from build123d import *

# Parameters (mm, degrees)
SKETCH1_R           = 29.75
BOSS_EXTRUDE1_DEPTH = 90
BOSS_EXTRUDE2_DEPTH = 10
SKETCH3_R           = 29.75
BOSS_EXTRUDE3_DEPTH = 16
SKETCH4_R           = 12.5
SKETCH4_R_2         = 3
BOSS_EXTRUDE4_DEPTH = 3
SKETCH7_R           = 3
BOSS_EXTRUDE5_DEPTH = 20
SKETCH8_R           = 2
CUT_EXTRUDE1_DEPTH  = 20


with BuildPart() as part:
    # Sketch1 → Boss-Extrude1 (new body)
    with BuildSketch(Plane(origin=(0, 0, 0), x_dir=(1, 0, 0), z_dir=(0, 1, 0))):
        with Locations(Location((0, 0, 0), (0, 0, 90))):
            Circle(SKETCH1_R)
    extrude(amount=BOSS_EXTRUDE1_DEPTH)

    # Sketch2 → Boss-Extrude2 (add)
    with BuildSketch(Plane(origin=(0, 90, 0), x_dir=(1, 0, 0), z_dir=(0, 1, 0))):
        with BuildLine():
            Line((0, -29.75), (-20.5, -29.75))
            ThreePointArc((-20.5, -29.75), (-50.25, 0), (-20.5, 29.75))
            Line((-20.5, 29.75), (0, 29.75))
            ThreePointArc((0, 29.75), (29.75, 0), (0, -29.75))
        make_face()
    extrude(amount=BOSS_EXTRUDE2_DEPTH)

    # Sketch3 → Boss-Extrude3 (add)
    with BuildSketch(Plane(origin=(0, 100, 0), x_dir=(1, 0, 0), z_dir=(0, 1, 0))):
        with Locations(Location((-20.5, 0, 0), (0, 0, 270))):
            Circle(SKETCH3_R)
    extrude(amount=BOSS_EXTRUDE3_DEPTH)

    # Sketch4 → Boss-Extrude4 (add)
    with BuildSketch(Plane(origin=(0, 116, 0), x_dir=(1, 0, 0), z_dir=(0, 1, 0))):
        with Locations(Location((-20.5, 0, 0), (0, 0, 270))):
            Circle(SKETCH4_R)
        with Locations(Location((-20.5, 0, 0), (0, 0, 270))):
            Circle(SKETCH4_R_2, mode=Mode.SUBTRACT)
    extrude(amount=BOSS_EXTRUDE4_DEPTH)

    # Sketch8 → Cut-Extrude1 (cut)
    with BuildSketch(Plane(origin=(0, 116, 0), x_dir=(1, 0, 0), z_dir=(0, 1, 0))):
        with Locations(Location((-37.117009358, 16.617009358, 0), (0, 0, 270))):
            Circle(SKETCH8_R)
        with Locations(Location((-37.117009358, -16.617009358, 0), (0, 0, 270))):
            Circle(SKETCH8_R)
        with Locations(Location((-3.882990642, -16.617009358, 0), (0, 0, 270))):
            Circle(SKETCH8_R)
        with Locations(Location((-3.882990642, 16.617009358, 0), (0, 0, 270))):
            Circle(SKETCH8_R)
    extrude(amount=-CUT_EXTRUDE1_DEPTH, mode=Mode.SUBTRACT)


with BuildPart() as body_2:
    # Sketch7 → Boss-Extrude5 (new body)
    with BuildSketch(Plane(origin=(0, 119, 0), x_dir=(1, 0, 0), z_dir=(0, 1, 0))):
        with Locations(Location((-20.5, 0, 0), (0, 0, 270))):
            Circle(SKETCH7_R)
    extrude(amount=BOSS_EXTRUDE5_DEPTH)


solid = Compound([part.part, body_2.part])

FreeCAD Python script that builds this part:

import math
import FreeCAD as App
import Part
import Sketcher

doc = App.newDocument("Part")
body = doc.addObject("PartDesign::Body", "Body")

# Sketch on XZ plane
sketch1 = body.newObject("Sketcher::SketchObject", "Sketch")
sketch1.AttachmentSupport = (doc.getObject("XZ_Plane"), [""])
sketch1.MapMode = "FlatFace"
sketch1.addGeometry(Part.Circle(App.Vector(0, 0, 0), App.Vector(0, 0, 1), 30), False)
sketch1.addConstraint([
    Sketcher.Constraint("Coincident", 0, 3, -1, 1),
    Sketcher.Constraint("Diameter", 0, 59.5),
])
pad1 = body.newObject("PartDesign::Pad", "Pad")
pad1.Profile = sketch1
pad1.Length = 90
pad1.Reversed = True

# Sketch on XZ plane
sketch2 = body.newObject("Sketcher::SketchObject", "Sketch001")
sketch2.AttachmentSupport = (doc.getObject("XZ_Plane"), [""])
sketch2.MapMode = "FlatFace"
sketch2.AttachmentOffset = App.Placement(App.Vector(0, 0, -90), App.Rotation())
sketch2.addGeometry([
    Part.LineSegment(App.Vector(-20, 30, 0), App.Vector(0, 30, 0)),
    Part.ArcOfCircle(Part.Circle(App.Vector(0, 0, 0), App.Vector(0, 0, 1), 30), math.radians(-90), math.radians(90)),
    Part.LineSegment(App.Vector(0, -30, 0), App.Vector(-20, -30, 0)),
    Part.ArcOfCircle(Part.Circle(App.Vector(-20, 0, 0), App.Vector(0, 0, 1), 30), math.radians(90), math.radians(270)),
], False)
sketch2.addConstraint([
    Sketcher.Constraint("Tangent", 0, 2, 1, 2),
    Sketcher.Constraint("Tangent", 1, 1, 2, 1),
    Sketcher.Constraint("Tangent", 2, 2, 3, 2),
    Sketcher.Constraint("Tangent", 3, 1, 0, 1),
    Sketcher.Constraint("Horizontal", 0),
    Sketcher.Constraint("Horizontal", 2),
    Sketcher.Constraint("Coincident", 1, 3, -1, 1),
    Sketcher.Constraint("Radius", 1, 29.75),
    Sketcher.Constraint("DistanceX", 0, 1, 0, 2, 20.5),
])
pad2 = body.newObject("PartDesign::Pad", "Pad001")
pad2.Profile = sketch2
pad2.Length = 10
pad2.Reversed = True

# Sketch on XZ plane
sketch3 = body.newObject("Sketcher::SketchObject", "Sketch002")
sketch3.AttachmentSupport = (doc.getObject("XZ_Plane"), [""])
sketch3.MapMode = "FlatFace"
sketch3.AttachmentOffset = App.Placement(App.Vector(0, 0, -100), App.Rotation())
sketch3.addGeometry(Part.Circle(App.Vector(-20, 0, 0), App.Vector(0, 0, 1), 30), False)
sketch3.addConstraint([
    Sketcher.Constraint("PointOnObject", 0, 3, -1),
    Sketcher.Constraint("Diameter", 0, 59.5),
    Sketcher.Constraint("DistanceX", 0, 3, -1, 1, 20.5),
])
pad3 = body.newObject("PartDesign::Pad", "Pad002")
pad3.Profile = sketch3
pad3.Length = 16
pad3.Reversed = True

# Sketch on XZ plane
sketch4 = body.newObject("Sketcher::SketchObject", "Sketch003")
sketch4.AttachmentSupport = (doc.getObject("XZ_Plane"), [""])
sketch4.MapMode = "FlatFace"
sketch4.AttachmentOffset = App.Placement(App.Vector(0, 0, -116), App.Rotation())
sketch4.addGeometry([
    Part.Circle(App.Vector(-20.5, 0, 0), App.Vector(0, 0, 1), 12.5),
    Part.Circle(App.Vector(-20.5, 0, 0), App.Vector(0, 0, 1), 3),
], False)
sketch4.addConstraint([
    Sketcher.Constraint("Coincident", 1, 3, 0, 3),
    Sketcher.Constraint("PointOnObject", 0, 3, -1),
    Sketcher.Constraint("Diameter", 0, 25.0),
    Sketcher.Constraint("Diameter", 1, 6.0),
    Sketcher.Constraint("DistanceX", 0, 3, -1, 1, 20.5),
])
pad4 = body.newObject("PartDesign::Pad", "Pad003")
pad4.Profile = sketch4
pad4.Length = 3
pad4.Reversed = True

# Sketch on XZ plane
sketch5 = body.newObject("Sketcher::SketchObject", "Sketch004")
sketch5.AttachmentSupport = (doc.getObject("XZ_Plane"), [""])
sketch5.MapMode = "FlatFace"
sketch5.AttachmentOffset = App.Placement(App.Vector(0, 0, -116), App.Rotation())
sketch5.addGeometry([
    Part.Circle(App.Vector(-37.1, -16.6, 0), App.Vector(0, 0, 1), 2),
    Part.Circle(App.Vector(-37.1, 16.6, 0), App.Vector(0, 0, 1), 2),
    Part.Circle(App.Vector(-3.9, 16.6, 0), App.Vector(0, 0, 1), 2),
    Part.Circle(App.Vector(-3.9, -16.6, 0), App.Vector(0, 0, 1), 2),
], False)
sketch5.addConstraint([
    Sketcher.Constraint("Equal", 0, 1),
    Sketcher.Constraint("Equal", 1, 2),
    Sketcher.Constraint("Equal", 2, 3),
    Sketcher.Constraint("Symmetric", 0, 3, 1, 3, -1),
    Sketcher.Constraint("Symmetric", 2, 3, 3, 3, -1),
    Sketcher.Constraint("Horizontal", 1, 3, 2, 3),
    Sketcher.Constraint("Diameter", 0, 4.0),
    Sketcher.Constraint("DistanceX", 0, 3, -1, 1, 37.117009),
    Sketcher.Constraint("DistanceY", 0, 3, -1, 1, 16.617009),
    Sketcher.Constraint("DistanceX", 2, 3, -1, 1, 3.882991),
])
pocket1 = body.newObject("PartDesign::Pocket", "Pocket")
pocket1.Profile = sketch5
pocket1.Length = 20
pocket1.Reversed = True
body2 = doc.addObject("PartDesign::Body", "Body001")

# Sketch on XZ plane
sketch6 = body2.newObject("Sketcher::SketchObject", "Sketch005")
sketch6.AttachmentSupport = (doc.getObject("XZ_Plane001"), [""])
sketch6.MapMode = "FlatFace"
sketch6.AttachmentOffset = App.Placement(App.Vector(0, 0, -119), App.Rotation())
sketch6.addGeometry(Part.Circle(App.Vector(-20.5, 0, 0), App.Vector(0, 0, 1), 3), False)
sketch6.addConstraint([
    Sketcher.Constraint("PointOnObject", 0, 3, -1),
    Sketcher.Constraint("Diameter", 0, 6.0),
    Sketcher.Constraint("DistanceX", 0, 3, -1, 1, 20.5),
])
pad5 = body2.newObject("PartDesign::Pad", "Pad004")
pad5.Profile = sketch6
pad5.Length = 20
pad5.Reversed = True

doc.recompute()
